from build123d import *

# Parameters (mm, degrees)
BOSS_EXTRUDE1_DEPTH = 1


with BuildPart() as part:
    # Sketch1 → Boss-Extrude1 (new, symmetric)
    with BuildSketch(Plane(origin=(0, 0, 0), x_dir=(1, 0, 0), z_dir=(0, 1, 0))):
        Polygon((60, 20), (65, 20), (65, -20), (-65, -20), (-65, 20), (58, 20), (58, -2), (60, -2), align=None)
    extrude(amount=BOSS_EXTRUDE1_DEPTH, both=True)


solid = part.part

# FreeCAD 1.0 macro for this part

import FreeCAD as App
import Part
import Sketcher
Q = App.Units.Quantity

doc = App.newDocument("Part")
body = doc.addObject("PartDesign::Body", "Body")

sketch1 = body.newObject("Sketcher::SketchObject", "Sketch")
sketch1.AttachmentSupport = (doc.getObject("XZ_Plane"), [""])
sketch1.MapMode = "FlatFace"
sketch1.addGeometry(Part.LineSegment(App.Vector(65, -20, 0), App.Vector(60, -20, 0)), False)
sketch1.addGeometry(Part.LineSegment(App.Vector(60, -20, 0), App.Vector(60, 2, 0)), False)
sketch1.addGeometry(Part.LineSegment(App.Vector(60, 2, 0), App.Vector(58, 2, 0)), False)
sketch1.addGeometry(Part.LineSegment(App.Vector(58, 2, 0), App.Vector(58, -20, 0)), False)
sketch1.addGeometry(Part.LineSegment(App.Vector(58, -20, 0), App.Vector(-65, -20, 0)), False)
sketch1.addGeometry(Part.LineSegment(App.Vector(-65, -20, 0), App.Vector(-65, 20, 0)), False)
sketch1.addGeometry(Part.LineSegment(App.Vector(-65, 20, 0), App.Vector(65, 20, 0)), False)
sketch1.addGeometry(Part.LineSegment(App.Vector(65, 20, 0), App.Vector(65, -20, 0)), False)
sketch1.addConstraint(Sketcher.Constraint("Coincident", 0, 2, 1, 1))
sketch1.addConstraint(Sketcher.Constraint("Coincident", 1, 2, 2, 1))
sketch1.addConstraint(Sketcher.Constraint("Coincident", 2, 2, 3, 1))
sketch1.addConstraint(Sketcher.Constraint("Coincident", 3, 2, 4, 1))
sketch1.addConstraint(Sketcher.Constraint("Coincident", 4, 2, 5, 1))
sketch1.addConstraint(Sketcher.Constraint("Coincident", 5, 2, 6, 1))
sketch1.addConstraint(Sketcher.Constraint("Coincident", 6, 2, 7, 1))
sketch1.addConstraint(Sketcher.Constraint("Coincident", 7, 2, 0, 1))
sketch1.addConstraint(Sketcher.Constraint("Horizontal", 0))
sketch1.addConstraint(Sketcher.Constraint("Vertical", 1))
sketch1.addConstraint(Sketcher.Constraint("Horizontal", 2))
sketch1.addConstraint(Sketcher.Constraint("Vertical", 3))
sketch1.addConstraint(Sketcher.Constraint("Horizontal", 4))
sketch1.addConstraint(Sketcher.Constraint("Vertical", 5))
sketch1.addConstraint(Sketcher.Constraint("Horizontal", 6))
sketch1.addConstraint(Sketcher.Constraint("Vertical", 7))
sketch1.addConstraint(Sketcher.Constraint("Symmetric", 4, 2, 6, 2, -1, 1))
sketch1.addConstraint(Sketcher.Constraint("Horizontal", 0, 2, 3, 2))
sketch1.addConstraint(Sketcher.Constraint("DistanceX", 0, 2, 0, 1, Q("5 mm")))
sketch1.addConstraint(Sketcher.Constraint("DistanceX", 2, 2, 2, 1, Q("2 mm")))
sketch1.addConstraint(Sketcher.Constraint("DistanceX", 4, 2, 4, 1, Q("123 mm")))
sketch1.addConstraint(Sketcher.Constraint("DistanceY", 1, 1, 1, 2, Q("22 mm")))
sketch1.addConstraint(Sketcher.Constraint("DistanceY", 5, 1, 5, 2, Q("40 mm")))
pad1 = body.newObject("PartDesign::Pad", "Pad")
pad1.Profile = sketch1
pad1.Length = 2
pad1.Midplane = True

doc.recompute()
